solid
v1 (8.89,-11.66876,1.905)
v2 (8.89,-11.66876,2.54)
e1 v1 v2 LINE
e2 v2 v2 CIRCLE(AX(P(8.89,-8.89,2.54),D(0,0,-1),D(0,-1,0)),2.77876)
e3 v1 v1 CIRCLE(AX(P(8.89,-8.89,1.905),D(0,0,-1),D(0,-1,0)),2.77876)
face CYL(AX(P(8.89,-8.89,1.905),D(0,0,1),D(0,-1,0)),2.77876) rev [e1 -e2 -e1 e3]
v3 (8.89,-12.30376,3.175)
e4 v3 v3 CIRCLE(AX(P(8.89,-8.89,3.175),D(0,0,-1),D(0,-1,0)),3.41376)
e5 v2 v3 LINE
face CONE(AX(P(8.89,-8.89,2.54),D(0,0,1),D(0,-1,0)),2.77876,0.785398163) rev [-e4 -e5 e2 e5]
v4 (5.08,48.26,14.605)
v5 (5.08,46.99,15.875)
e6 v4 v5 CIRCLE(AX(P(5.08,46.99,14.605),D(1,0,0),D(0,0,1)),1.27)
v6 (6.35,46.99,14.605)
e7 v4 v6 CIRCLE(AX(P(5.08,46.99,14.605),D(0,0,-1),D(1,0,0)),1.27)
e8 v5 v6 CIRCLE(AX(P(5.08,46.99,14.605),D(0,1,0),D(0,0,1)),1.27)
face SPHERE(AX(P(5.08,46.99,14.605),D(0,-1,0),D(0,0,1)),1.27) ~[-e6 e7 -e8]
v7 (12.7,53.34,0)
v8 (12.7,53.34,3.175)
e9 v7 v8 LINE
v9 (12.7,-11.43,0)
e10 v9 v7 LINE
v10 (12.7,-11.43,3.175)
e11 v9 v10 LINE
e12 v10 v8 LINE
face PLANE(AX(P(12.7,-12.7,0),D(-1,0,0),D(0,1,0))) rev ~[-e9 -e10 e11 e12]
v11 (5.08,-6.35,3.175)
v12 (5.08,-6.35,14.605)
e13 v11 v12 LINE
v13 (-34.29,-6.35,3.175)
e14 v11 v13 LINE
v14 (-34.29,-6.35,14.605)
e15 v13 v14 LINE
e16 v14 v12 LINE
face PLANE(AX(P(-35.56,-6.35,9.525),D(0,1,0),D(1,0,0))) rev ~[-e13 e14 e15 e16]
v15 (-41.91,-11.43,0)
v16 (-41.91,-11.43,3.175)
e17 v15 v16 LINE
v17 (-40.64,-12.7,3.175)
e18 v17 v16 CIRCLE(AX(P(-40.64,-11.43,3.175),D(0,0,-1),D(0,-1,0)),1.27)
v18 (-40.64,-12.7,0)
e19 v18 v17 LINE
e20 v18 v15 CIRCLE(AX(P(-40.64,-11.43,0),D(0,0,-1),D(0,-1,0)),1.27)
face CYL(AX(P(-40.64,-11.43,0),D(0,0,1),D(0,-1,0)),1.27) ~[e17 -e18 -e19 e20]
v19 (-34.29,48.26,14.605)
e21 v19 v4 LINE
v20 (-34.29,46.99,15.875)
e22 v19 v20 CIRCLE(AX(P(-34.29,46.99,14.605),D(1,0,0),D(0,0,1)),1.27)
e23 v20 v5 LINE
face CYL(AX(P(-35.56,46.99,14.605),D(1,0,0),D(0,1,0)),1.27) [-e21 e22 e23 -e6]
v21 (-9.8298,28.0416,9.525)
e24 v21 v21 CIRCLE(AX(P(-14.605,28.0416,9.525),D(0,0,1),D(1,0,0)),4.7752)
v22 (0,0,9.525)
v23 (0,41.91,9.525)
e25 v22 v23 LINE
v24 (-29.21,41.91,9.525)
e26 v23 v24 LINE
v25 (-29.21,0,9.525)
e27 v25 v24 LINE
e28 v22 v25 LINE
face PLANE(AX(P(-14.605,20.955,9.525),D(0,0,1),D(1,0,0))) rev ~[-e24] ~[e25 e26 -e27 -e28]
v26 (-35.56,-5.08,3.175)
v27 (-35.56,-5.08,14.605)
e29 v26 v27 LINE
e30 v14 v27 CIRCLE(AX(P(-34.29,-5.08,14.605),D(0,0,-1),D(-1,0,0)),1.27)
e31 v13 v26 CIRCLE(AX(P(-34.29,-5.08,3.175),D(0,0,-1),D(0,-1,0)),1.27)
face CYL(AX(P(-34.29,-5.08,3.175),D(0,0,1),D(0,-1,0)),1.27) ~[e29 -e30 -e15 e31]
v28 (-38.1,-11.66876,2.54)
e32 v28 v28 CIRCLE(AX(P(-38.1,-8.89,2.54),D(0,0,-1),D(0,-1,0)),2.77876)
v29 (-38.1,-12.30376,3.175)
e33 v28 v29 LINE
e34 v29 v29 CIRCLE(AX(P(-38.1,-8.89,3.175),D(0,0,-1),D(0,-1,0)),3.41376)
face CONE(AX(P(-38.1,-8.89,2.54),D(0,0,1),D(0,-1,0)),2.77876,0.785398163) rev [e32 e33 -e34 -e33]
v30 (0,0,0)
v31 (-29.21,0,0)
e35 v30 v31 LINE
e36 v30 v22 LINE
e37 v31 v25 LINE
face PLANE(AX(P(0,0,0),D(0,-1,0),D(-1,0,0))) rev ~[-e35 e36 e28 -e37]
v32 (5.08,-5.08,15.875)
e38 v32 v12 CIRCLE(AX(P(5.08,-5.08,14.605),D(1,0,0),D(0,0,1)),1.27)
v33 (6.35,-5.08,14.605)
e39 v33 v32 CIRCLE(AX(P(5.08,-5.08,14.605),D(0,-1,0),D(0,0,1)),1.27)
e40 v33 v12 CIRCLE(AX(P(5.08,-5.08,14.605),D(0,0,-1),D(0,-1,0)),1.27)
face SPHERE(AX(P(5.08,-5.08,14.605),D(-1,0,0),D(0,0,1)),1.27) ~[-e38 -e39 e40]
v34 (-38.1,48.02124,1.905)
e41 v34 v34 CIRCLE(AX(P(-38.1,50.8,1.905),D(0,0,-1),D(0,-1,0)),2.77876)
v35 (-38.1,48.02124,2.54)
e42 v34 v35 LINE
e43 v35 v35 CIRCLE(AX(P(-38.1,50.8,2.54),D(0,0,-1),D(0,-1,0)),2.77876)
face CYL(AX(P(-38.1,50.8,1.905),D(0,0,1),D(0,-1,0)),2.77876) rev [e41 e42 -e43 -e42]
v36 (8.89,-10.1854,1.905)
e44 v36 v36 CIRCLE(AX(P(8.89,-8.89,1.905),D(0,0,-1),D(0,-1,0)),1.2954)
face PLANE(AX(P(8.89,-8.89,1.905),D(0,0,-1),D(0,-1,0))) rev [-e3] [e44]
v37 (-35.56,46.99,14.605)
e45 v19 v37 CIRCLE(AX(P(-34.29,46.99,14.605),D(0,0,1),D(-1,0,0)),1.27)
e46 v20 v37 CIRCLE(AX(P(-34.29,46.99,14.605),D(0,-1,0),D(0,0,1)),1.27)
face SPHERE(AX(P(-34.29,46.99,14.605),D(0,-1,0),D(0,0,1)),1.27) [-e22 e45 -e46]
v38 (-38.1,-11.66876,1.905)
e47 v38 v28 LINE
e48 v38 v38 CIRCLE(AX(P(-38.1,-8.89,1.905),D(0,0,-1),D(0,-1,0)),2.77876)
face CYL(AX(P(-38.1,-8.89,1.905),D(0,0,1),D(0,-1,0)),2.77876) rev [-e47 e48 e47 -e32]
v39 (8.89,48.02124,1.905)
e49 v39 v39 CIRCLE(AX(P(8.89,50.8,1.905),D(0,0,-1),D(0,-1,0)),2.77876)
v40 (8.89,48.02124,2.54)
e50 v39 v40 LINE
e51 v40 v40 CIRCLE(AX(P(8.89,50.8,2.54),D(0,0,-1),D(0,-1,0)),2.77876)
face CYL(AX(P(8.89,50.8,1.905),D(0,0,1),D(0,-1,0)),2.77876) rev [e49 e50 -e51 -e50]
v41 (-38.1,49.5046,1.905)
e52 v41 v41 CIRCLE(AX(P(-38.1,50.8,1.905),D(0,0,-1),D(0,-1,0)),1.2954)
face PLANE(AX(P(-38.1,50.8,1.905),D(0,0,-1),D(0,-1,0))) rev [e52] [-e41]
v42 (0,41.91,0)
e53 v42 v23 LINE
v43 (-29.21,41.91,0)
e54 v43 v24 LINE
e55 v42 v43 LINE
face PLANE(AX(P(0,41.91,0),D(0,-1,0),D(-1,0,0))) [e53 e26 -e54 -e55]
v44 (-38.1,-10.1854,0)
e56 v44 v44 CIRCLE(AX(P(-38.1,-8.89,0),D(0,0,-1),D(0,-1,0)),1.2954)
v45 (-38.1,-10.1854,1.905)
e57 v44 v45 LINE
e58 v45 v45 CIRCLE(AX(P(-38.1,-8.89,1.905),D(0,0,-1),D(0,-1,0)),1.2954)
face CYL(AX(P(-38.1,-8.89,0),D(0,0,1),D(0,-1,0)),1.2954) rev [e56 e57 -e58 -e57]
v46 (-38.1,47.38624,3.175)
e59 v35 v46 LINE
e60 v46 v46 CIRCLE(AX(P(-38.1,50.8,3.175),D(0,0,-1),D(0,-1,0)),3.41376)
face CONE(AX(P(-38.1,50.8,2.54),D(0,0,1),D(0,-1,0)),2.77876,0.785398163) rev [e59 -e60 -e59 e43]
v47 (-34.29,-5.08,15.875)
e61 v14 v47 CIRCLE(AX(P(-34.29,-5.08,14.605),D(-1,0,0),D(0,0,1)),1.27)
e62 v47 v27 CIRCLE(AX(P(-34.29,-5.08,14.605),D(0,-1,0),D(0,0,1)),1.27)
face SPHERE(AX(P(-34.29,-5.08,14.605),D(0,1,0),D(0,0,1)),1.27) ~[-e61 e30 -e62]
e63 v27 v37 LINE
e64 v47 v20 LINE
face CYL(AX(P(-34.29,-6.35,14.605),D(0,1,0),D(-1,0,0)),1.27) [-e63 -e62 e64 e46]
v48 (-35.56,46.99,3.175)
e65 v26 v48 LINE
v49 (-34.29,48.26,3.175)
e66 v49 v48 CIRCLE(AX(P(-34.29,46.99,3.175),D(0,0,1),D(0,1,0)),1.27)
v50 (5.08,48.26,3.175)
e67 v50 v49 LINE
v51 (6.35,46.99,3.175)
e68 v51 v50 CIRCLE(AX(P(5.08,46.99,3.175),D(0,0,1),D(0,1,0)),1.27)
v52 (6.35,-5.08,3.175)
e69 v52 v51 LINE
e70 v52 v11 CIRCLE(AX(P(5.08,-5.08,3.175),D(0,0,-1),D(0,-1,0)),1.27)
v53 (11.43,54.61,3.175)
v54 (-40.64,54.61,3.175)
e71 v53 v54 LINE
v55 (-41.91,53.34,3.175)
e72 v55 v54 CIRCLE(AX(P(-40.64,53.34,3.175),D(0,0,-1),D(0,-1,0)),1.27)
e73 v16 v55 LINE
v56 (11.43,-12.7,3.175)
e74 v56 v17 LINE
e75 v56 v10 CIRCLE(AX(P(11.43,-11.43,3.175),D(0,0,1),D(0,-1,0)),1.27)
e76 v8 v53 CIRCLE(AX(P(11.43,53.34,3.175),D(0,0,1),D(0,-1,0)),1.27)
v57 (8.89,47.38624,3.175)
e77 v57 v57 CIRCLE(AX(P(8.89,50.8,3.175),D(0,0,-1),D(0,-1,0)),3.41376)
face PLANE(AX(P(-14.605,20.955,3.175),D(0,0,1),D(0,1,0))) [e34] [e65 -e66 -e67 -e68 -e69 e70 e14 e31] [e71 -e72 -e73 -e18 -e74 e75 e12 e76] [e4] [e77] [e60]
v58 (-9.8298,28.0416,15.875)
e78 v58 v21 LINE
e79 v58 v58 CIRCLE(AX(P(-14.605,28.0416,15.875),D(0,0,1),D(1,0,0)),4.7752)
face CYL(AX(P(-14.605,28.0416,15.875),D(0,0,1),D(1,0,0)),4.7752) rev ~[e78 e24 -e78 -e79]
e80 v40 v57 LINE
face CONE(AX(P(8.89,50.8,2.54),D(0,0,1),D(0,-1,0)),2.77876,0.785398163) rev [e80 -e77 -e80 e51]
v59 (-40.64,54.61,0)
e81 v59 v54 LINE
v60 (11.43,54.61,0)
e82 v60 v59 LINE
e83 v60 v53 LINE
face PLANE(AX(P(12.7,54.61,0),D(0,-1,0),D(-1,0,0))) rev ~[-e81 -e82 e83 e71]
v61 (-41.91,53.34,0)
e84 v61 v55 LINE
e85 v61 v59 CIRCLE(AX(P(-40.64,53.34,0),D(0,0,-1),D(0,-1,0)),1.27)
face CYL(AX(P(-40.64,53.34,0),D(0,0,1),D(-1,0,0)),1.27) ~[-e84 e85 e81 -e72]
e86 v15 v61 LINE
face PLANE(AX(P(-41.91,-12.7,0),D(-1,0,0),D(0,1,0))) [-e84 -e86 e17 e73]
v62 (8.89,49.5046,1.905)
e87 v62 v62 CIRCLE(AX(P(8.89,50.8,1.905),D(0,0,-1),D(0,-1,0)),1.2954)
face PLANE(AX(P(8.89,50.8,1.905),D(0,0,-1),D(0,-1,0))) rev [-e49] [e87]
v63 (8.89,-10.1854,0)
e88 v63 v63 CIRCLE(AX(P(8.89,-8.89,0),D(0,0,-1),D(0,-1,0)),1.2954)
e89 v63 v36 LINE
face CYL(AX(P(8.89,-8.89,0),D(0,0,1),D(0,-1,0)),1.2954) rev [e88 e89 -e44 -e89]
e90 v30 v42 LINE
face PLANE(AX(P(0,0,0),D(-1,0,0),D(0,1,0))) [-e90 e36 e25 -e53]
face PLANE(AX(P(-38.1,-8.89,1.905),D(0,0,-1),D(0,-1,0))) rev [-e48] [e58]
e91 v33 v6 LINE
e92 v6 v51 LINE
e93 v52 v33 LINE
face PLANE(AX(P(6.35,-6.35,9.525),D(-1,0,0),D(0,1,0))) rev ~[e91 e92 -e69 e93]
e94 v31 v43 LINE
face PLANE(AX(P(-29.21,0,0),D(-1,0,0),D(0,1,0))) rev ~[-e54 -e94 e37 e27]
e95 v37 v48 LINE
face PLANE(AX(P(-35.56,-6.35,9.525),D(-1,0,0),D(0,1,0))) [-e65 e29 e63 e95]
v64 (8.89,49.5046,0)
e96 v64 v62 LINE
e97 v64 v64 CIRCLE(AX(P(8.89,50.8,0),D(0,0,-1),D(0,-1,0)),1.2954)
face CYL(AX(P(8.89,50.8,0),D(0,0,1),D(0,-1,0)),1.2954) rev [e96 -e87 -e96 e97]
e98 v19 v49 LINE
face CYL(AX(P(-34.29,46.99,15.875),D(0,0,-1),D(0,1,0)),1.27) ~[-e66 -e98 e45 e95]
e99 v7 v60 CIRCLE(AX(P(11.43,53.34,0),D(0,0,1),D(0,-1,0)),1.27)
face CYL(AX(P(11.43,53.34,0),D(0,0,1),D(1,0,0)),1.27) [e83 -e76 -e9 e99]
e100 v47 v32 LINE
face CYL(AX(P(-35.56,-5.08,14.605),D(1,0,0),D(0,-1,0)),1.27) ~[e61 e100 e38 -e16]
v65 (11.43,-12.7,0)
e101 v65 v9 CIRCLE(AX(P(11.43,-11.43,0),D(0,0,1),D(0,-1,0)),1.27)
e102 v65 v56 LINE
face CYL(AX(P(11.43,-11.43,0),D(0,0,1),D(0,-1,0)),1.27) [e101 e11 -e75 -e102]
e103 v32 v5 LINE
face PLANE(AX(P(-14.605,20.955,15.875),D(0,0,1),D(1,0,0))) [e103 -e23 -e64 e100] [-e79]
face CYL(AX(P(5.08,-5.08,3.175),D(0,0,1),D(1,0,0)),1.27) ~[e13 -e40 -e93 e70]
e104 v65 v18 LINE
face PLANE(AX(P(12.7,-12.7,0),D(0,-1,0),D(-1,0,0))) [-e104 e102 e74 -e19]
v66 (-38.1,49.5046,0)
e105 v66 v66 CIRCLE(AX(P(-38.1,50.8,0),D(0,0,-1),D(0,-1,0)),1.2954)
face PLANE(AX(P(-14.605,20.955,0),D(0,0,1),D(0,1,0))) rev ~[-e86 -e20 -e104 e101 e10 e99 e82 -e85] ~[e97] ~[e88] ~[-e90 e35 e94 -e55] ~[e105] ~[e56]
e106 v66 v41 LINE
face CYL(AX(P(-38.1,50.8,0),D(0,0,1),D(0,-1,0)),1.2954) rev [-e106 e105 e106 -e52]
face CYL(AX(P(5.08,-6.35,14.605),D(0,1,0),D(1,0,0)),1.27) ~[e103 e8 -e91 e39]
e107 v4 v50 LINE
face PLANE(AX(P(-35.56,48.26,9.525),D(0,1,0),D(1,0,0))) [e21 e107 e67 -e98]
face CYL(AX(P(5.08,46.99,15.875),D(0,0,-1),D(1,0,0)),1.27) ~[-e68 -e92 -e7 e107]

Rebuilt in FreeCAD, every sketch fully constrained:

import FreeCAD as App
import Part
import Sketcher
Q = App.Units.Quantity


def edges_at(feature, points):
    """Names of the edges that pass closest to the given points."""
    edges = feature.Shape.Edges
    near = lambda p: min(range(len(edges)), key=lambda i: edges[i].distToShape(Part.Vertex(*p))[0])
    return sorted({f"Edge{near(p) + 1}" for p in points})


def add_polygon(sketch, points):
    """Adds a closed chain of lines whose ends are joined by coincident constraints."""
    first, n = sketch.GeometryCount, len(points)
    for a, b in zip(points, points[1:] + points[:1]):
        sketch.addGeometry(Part.LineSegment(App.Vector(*a, 0), App.Vector(*b, 0)), False)
    for i in range(n):
        sketch.addConstraint(Sketcher.Constraint("Coincident", first + i, 2, first + (i + 1) % n, 1))

doc = App.newDocument("Part")
body = doc.addObject("PartDesign::Body", "Body")

# Sketch on XY plane
sketch1 = body.newObject("Sketcher::SketchObject", "Sketch")
sketch1.AttachmentSupport = (doc.getObject("XY_Plane"), [""])
sketch1.MapMode = "FlatFace"
add_polygon(sketch1, [(-36, -6), (6, -6), (6, 48), (-36, 48)])  # lines 0-3
add_polygon(sketch1, [(0, 42), (0, 0), (-29, 0), (-29, 42)])  # lines 4-7
sketch1.addConstraint([
    Sketcher.Constraint("Horizontal", 0),
    Sketcher.Constraint("Vertical", 1),
    Sketcher.Constraint("Horizontal", 2),
    Sketcher.Constraint("Vertical", 3),
    Sketcher.Constraint("Vertical", 4),
    Sketcher.Constraint("Horizontal", 5),
    Sketcher.Constraint("Vertical", 6),
    Sketcher.Constraint("Horizontal", 7),
    Sketcher.Constraint("Coincident", 4, 2, -1, 1),
    Sketcher.Constraint("Equal", 2, 4),
    Sketcher.Constraint("DistanceX", 0, 1, 0, 2, Q("1.65 in")),
    Sketcher.Constraint("DistanceX", 5, 2, 5, 1, Q("1.15 in")),
    Sketcher.Constraint("DistanceY", 1, 1, 1, 2, Q("2.15 in")),
    Sketcher.Constraint("DistanceY", -1, 1, 1, 2, Q("1.9 in")),
    Sketcher.Constraint("DistanceX", 2, 2, -1, 1, Q("1.4 in")),
])
pad1 = body.newObject("PartDesign::Pad", "Pad")
pad1.Profile = sketch1
pad1.Length = Q("0.375 in")

# Sketch on XY plane
sketch2 = body.newObject("Sketcher::SketchObject", "Sketch001")
sketch2.AttachmentSupport = (doc.getObject("XY_Plane"), [""])
sketch2.MapMode = "FlatFace"
sketch2.AttachmentOffset = App.Placement(App.Vector(0, 0, 0.375 * 25.4), App.Rotation())
add_polygon(sketch2, [(-36, 48), (-36, -6), (6, -6), (6, 48)])  # lines 0-3
sketch2.addConstraint([
    Sketcher.Constraint("Vertical", 0),
    Sketcher.Constraint("Horizontal", 1),
    Sketcher.Constraint("Vertical", 2),
    Sketcher.Constraint("Horizontal", 3),
    Sketcher.Constraint("DistanceX", 1, 1, 1, 2, Q("1.65 in")),
    Sketcher.Constraint("DistanceY", 0, 2, 0, 1, Q("2.15 in")),
    Sketcher.Constraint("DistanceX", 0, 2, -1, 1, Q("1.4 in")),
    Sketcher.Constraint("DistanceY", -1, 1, 2, 2, Q("1.9 in")),
])
pad2 = body.newObject("PartDesign::Pad", "Pad001")
pad2.Profile = sketch2
pad2.Length = Q("0.25 in")

# Sketch on XY plane
sketch3 = body.newObject("Sketcher::SketchObject", "Sketch002")
sketch3.AttachmentSupport = (doc.getObject("XY_Plane"), [""])
sketch3.MapMode = "FlatFace"
sketch3.AttachmentOffset = App.Placement(App.Vector(0, 0, 0.625 * 25.4), App.Rotation())
sketch3.addGeometry(Part.Circle(App.Vector(-14.6, 28, 0), App.Vector(0, 0, 1), 4.8), False)
sketch3.addConstraint([
    Sketcher.Constraint("Diameter", 0, Q("0.376 in")),
    Sketcher.Constraint("DistanceX", 0, 3, -1, 1, Q("0.575 in")),
    Sketcher.Constraint("DistanceY", -1, 1, 0, 3, Q("1.104 in")),
])
pocket1 = body.newObject("PartDesign::Pocket", "Pocket")
pocket1.Profile = sketch3
pocket1.Type = "ThroughAll"

# Sketch on XY plane
sketch4 = body.newObject("Sketcher::SketchObject", "Sketch003")
sketch4.AttachmentSupport = (doc.getObject("XY_Plane"), [""])
sketch4.MapMode = "FlatFace"
add_polygon(sketch4, [(-42, -13), (13, -13), (13, 55), (-42, 55)])  # lines 0-3
add_polygon(sketch4, [(6, 48), (6, -6), (-36, -6), (-36, 48)])  # lines 4-7
sketch4.addConstraint([
    Sketcher.Constraint("Horizontal", 0),
    Sketcher.Constraint("Vertical", 1),
    Sketcher.Constraint("Horizontal", 2),
    Sketcher.Constraint("Vertical", 3),
    Sketcher.Constraint("Vertical", 4),
    Sketcher.Constraint("Horizontal", 5),
    Sketcher.Constraint("Vertical", 6),
    Sketcher.Constraint("Horizontal", 7),
    Sketcher.Constraint("Equal", 2, 4),
    Sketcher.Constraint("DistanceX", 0, 1, 0, 2, Q("2.15 in")),
    Sketcher.Constraint("DistanceX", 5, 2, 5, 1, Q("1.65 in")),
    Sketcher.Constraint("DistanceY", 1, 1, 1, 2, Q("2.65 in")),
    Sketcher.Constraint("DistanceX", -1, 1, 0, 2, Q("0.5 in")),
    Sketcher.Constraint("DistanceY", 0, 2, -1, 1, Q("0.5 in")),
    Sketcher.Constraint("DistanceX", 5, 2, -1, 1, Q("1.4 in")),
    Sketcher.Constraint("DistanceY", -1, 1, 6, 2, Q("1.9 in")),
])
pad3 = body.newObject("PartDesign::Pad", "Pad002")
pad3.Profile = sketch4
pad3.Length = Q("0.125 in")

# Sketch on YZ plane
sketch5 = body.newObject("Sketcher::SketchObject", "Sketch004")
sketch5.AttachmentSupport = (doc.getObject("YZ_Plane"), [""])
sketch5.MapMode = "FlatFace"
sketch5.AttachmentOffset = App.Placement(App.Vector(0, 0, -1.5 * 25.4), App.Rotation())
add_polygon(sketch5, [(50.8, 0), (50.8, 3.2), (47.4, 3.2), (48, 2.5), (48, 1.9), (49.5, 1.9), (49.5, 0)])  # lines 0-6
sketch5.addGeometry(Part.LineSegment(App.Vector(50.8, 3.2, 0), App.Vector(50.8, 0, 0)), True)  # axis
sketch5.addConstraint([
    Sketcher.Constraint("Vertical", 0),
    Sketcher.Constraint("Horizontal", 1),
    Sketcher.Constraint("Vertical", 3),
    Sketcher.Constraint("Horizontal", 4),
    Sketcher.Constraint("Vertical", 5),
    Sketcher.Constraint("Horizontal", 6),
    Sketcher.Constraint("Vertical", 7),
    Sketcher.Constraint("Coincident", 7, 1, 0, 2),
    Sketcher.Constraint("PointOnObject", 5, 2, -1),
    Sketcher.Constraint("PointOnObject", 7, 2, -1),
    Sketcher.Constraint("DistanceX", -1, 1, 0, 2, Q("2 in")),
    Sketcher.Constraint("Angle", 2, Q("-45 deg")),
    Sketcher.Constraint("DistanceY", -1, 1, 2, 2, Q("0.1 in")),
    Sketcher.Constraint("DistanceX", 6, 1, 6, 2, Q("0.051 in")),
    Sketcher.Constraint("DistanceY", 0, 1, 0, 2, Q("0.125 in")),
    Sketcher.Constraint("DistanceY", 3, 2, 3, 1, Q("0.025 in")),
    Sketcher.Constraint("DistanceX", 1, 2, 1, 1, Q("0.1344 in")),
])
groove = body.newObject("PartDesign::Groove", "Groove")
groove.Profile = sketch5
groove.ReferenceAxis = (sketch5, ["Axis0"])
groove.Angle = 360
doc.recompute()

linearpattern = body.newObject("PartDesign::LinearPattern", "LinearPattern")
linearpattern.Originals = [groove]
linearpattern.Direction = (doc.getObject("X_Axis"), [""])
linearpattern.Mode = "offset"
linearpattern.Offset = Q("1.85 in")
linearpattern.Occurrences = 2
body.Tip = linearpattern
doc.recompute()

datumline = body.newObject("PartDesign::Line", "DatumLine")
datumline.Placement = App.Placement(App.Vector(0, 0, 0), App.Rotation(App.Vector(0, 0, 1), App.Vector(0.618559606, -0.785737878, 0)))
linearpattern2 = body.newObject("PartDesign::LinearPattern", "LinearPattern001")
linearpattern2.Originals = [groove]
linearpattern2.Direction = (datumline, [""])
linearpattern2.Mode = "offset"
linearpattern2.Offset = 75.96681
linearpattern2.Occurrences = 2
body.Tip = linearpattern2
doc.recompute()

linearpattern3 = body.newObject("PartDesign::LinearPattern", "LinearPattern002")
linearpattern3.Originals = [groove]
linearpattern3.Direction = (doc.getObject("Y_Axis"), [""])
linearpattern3.Mode = "offset"
linearpattern3.Offset = Q("2.35 in")
linearpattern3.Occurrences = 2
linearpattern3.Reversed = True
body.Tip = linearpattern3
doc.recompute()

fillet = body.newObject("PartDesign::Fillet", "Fillet")
fillet.Base = (linearpattern3, edges_at(linearpattern3, [
    (-35.56, 20.955, 15.875),
    (-14.605, -6.35, 15.875),
    (6.35, 20.955, 15.875),
    (-14.605, 48.26, 15.875),
    (-41.91, -12.7, 1.587),
    (12.7, -12.7, 1.587),
    (12.7, 54.61, 1.587),
    (-41.91, 54.61, 1.587),
    (-35.56, -6.35, 9.525),
    (-35.56, 48.26, 9.525),
    (6.35, 48.26, 9.525),
    (6.35, -6.35, 9.525),
]))
fillet.Radius = Q("0.05 in")

doc.recompute()
